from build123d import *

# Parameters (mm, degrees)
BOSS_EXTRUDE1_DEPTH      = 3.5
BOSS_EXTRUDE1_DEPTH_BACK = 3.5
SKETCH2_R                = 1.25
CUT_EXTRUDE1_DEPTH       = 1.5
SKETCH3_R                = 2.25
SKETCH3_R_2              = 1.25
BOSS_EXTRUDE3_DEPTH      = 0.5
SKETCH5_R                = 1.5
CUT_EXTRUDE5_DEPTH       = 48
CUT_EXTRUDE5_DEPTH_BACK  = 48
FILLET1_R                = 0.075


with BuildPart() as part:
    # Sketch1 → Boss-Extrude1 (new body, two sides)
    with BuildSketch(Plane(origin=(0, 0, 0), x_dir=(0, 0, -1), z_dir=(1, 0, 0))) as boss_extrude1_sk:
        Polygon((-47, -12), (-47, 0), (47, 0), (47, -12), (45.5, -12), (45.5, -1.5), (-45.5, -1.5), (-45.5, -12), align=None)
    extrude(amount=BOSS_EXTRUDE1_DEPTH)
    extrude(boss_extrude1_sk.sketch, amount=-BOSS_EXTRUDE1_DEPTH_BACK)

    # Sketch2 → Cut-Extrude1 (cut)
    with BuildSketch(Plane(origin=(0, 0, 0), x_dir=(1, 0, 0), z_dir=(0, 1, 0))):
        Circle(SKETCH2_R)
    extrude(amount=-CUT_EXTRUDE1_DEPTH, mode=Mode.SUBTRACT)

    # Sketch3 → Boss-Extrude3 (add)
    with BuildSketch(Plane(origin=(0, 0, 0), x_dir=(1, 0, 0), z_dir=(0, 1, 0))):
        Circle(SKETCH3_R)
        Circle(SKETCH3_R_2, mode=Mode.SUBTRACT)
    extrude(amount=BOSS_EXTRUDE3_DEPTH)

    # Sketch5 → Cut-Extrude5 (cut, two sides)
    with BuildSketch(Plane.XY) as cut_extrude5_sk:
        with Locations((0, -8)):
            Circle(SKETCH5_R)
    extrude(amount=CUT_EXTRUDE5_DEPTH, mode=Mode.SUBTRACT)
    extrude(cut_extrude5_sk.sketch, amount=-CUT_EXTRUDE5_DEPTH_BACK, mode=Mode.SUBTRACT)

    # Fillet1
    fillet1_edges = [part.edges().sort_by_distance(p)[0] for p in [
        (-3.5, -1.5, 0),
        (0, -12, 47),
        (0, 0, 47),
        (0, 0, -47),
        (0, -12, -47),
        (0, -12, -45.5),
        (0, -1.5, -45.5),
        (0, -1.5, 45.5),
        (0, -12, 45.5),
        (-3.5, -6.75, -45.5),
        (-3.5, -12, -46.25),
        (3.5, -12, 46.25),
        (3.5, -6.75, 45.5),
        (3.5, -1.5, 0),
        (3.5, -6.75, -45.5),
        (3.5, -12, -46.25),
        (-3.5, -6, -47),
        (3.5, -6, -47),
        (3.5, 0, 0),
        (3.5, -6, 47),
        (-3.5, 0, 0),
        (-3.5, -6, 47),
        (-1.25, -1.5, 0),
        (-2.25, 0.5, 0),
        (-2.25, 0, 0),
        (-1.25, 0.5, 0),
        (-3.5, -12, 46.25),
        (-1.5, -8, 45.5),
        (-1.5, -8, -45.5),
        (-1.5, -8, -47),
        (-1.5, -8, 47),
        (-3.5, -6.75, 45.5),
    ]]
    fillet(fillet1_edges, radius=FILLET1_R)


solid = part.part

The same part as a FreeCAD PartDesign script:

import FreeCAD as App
import Part
import Sketcher

V = App.Vector

doc = App.newDocument("Part")
body = doc.addObject("PartDesign::Body", "Body")

sketch1 = body.newObject("Sketcher::SketchObject", "Sketch")
sketch1.AttachmentSupport = (doc.getObject("YZ_Plane"), [""])
sketch1.MapMode = "FlatFace"
sketch1.addGeometry([
    Part.LineSegment(V(0, 47, 0), V(-12, 47, 0)),
    Part.LineSegment(V(-12, 47, 0), V(-12, 45.5, 0)),
    Part.LineSegment(V(-12, 45.5, 0), V(-1.5, 45.5, 0)),
    Part.LineSegment(V(-1.5, 45.5, 0), V(-1.5, -45.5, 0)),
    Part.LineSegment(V(-1.5, -45.5, 0), V(-12, -45.5, 0)),
    Part.LineSegment(V(-12, -45.5, 0), V(-12, -47, 0)),
    Part.LineSegment(V(-12, -47, 0), V(0, -47, 0)),
    Part.LineSegment(V(0, -47, 0), V(0, 47, 0)),
], False)
sketch1.addConstraint([
    Sketcher.Constraint("Coincident", 0, 2, 1, 1),
    Sketcher.Constraint("Coincident", 1, 2, 2, 1),
    Sketcher.Constraint("Coincident", 2, 2, 3, 1),
    Sketcher.Constraint("Coincident", 3, 2, 4, 1),
    Sketcher.Constraint("Coincident", 4, 2, 5, 1),
    Sketcher.Constraint("Coincident", 5, 2, 6, 1),
    Sketcher.Constraint("Coincident", 6, 2, 7, 1),
    Sketcher.Constraint("Coincident", 7, 2, 0, 1),
    Sketcher.Constraint("Horizontal", 0),
    Sketcher.Constraint("Vertical", 1),
    Sketcher.Constraint("Horizontal", 2),
    Sketcher.Constraint("Vertical", 3),
    Sketcher.Constraint("Horizontal", 4),
    Sketcher.Constraint("Vertical", 5),
    Sketcher.Constraint("Horizontal", 6),
    Sketcher.Constraint("Vertical", 7),
    Sketcher.Constraint("Symmetric", 6, 2, 7, 2, -1, 1),
    Sketcher.Constraint("Symmetric", 1, 2, 4, 2, -1),
    Sketcher.Constraint("DistanceX", 0, 2, 0, 1, 12.0),
    Sketcher.Constraint("DistanceY", 3, 2, 3, 1, 91.0),
    Sketcher.Constraint("DistanceY", 7, 1, 7, 2, 94.0),
    Sketcher.Constraint("DistanceX", 2, 1, 2, 2, 10.5),
])
pad1 = body.newObject("PartDesign::Pad", "Pad")
pad1.Profile = sketch1
pad1.Type = "TwoLengths"
pad1.Length = 3.5
pad1.Length2 = 3.5

sketch2 = body.newObject("Sketcher::SketchObject", "Sketch001")
sketch2.AttachmentSupport = (doc.getObject("XZ_Plane"), [""])
sketch2.MapMode = "FlatFace"
sketch2.addGeometry(Part.Circle(V(0, 0, 0), V(0, 0, 1), 1.2), False)
sketch2.addConstraint([
    Sketcher.Constraint("Coincident", 0, 3, -1, 1),
    Sketcher.Constraint("Diameter", 0, 2.5),
])
pocket1 = body.newObject("PartDesign::Pocket", "Pocket")
pocket1.Profile = sketch2
pocket1.Length = 1.5
pocket1.Reversed = True

sketch3 = body.newObject("Sketcher::SketchObject", "Sketch002")
sketch3.AttachmentSupport = (doc.getObject("XZ_Plane"), [""])
sketch3.MapMode = "FlatFace"
sketch3.addGeometry([
    Part.Circle(V(0, 0, 0), V(0, 0, 1), 2.2),
    Part.Circle(V(0, 0, 0), V(0, 0, 1), 1.2),
], False)
sketch3.addConstraint([
    Sketcher.Constraint("Coincident", 0, 3, -1, 1),
    Sketcher.Constraint("Coincident", 1, 3, -1, 1),
    Sketcher.Constraint("Diameter", 0, 4.5),
    Sketcher.Constraint("Diameter", 1, 2.5),
])
pad2 = body.newObject("PartDesign::Pad", "Pad001")
pad2.Profile = sketch3
pad2.Length = 0.5
pad2.Reversed = True

sketch4 = body.newObject("Sketcher::SketchObject", "Sketch003")
sketch4.AttachmentSupport = (doc.getObject("XY_Plane"), [""])
sketch4.MapMode = "FlatFace"
sketch4.addGeometry(Part.Circle(V(0, -8, 0), V(0, 0, 1), 1.5), False)
sketch4.addConstraint([
    Sketcher.Constraint("PointOnObject", 0, 3, -2),
    Sketcher.Constraint("Diameter", 0, 3.0),
    Sketcher.Constraint("DistanceY", 0, 3, -1, 1, 8.0),
])
pocket2 = body.newObject("PartDesign::Pocket", "Pocket001")
pocket2.Profile = sketch4
pocket2.Type = "ThroughAll"
pocket2.Midplane = True
doc.recompute()

fillet = body.newObject("PartDesign::Fillet", "Fillet")
fillet.Base = (pocket2, ["Edge1"])
fillet.UseAllEdges = True
fillet.Radius = 0.075

doc.recompute()
